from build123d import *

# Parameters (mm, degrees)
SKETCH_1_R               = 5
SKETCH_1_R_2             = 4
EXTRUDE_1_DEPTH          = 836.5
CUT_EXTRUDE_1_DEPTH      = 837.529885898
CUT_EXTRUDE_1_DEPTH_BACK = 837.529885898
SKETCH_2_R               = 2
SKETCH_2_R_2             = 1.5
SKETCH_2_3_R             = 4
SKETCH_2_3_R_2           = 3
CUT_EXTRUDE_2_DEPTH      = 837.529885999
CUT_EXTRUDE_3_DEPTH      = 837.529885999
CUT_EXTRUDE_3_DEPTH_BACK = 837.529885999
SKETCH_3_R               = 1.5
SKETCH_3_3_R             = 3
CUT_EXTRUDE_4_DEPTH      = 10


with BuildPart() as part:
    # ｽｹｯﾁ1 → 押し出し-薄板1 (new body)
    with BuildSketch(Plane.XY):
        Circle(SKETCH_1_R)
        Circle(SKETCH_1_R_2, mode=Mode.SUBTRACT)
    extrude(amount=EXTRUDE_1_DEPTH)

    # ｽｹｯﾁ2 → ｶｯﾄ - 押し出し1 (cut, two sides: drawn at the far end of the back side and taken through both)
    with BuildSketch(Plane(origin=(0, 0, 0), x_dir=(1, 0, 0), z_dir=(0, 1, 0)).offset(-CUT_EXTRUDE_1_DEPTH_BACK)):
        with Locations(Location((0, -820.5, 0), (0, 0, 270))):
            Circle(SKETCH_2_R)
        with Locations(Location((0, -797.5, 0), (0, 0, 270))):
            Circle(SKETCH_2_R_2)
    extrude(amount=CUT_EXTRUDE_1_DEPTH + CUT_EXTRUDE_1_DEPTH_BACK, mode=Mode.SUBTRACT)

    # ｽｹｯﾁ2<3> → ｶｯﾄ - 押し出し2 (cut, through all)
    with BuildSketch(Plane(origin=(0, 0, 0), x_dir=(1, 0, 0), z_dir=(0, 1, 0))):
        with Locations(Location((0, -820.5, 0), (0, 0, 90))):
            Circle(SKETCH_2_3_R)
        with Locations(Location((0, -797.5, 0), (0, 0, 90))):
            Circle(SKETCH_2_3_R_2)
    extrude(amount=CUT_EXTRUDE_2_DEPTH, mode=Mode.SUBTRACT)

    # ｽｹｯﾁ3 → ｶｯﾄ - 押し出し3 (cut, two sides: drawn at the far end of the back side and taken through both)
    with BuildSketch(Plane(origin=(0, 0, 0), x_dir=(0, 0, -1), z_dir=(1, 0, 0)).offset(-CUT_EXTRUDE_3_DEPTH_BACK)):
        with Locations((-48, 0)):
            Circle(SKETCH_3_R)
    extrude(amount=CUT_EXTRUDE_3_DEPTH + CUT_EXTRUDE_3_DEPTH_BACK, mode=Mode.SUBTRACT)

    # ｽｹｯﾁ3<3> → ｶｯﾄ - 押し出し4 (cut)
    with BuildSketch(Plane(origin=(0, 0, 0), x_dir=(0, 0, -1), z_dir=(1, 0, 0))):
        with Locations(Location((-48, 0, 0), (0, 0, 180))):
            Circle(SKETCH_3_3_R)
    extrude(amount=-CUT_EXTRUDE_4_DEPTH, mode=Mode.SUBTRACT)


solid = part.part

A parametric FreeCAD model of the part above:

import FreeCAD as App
import Part
import Sketcher

V = App.Vector
Q = App.Units.Quantity

doc = App.newDocument("Part")
params = doc.addObject("Spreadsheet::Sheet", "Params")
for row, (alias, value) in enumerate([
    ("sketch1_diameter", "10 mm"),
    ("sketch1_diameter2", "8 mm"),
    ("pad1_length", "836.5 mm"),
    ("sketch2_diameter", "4 mm"),
    ("sketch2_diameter2", "3 mm"),
    ("sketch3_diameter", "8 mm"),
    ("sketch3_diameter2", "6 mm"),
    ("sketch4_diameter", "3 mm"),
    ("sketch5_diameter", "6 mm"),
    ("pocket4_length", "10 mm"),
], start=1):
    params.set(f"A{row}", alias)
    params.set(f"B{row}", "=" + value)
    params.setAlias(f"B{row}", alias)

body = doc.addObject("PartDesign::Body", "Body")

# Sketch on XY plane
sketch1 = body.newObject("Sketcher::SketchObject", "Sketch")
sketch1.AttachmentSupport = (doc.getObject("XY_Plane"), [""])
sketch1.MapMode = "FlatFace"
sketch1.addGeometry([
    Part.Circle(V(0, 0, 0), V(0, 0, 1), 5),
    Part.Circle(V(0, 0, 0), V(0, 0, 1), 4),
], False)
sketch1.addConstraint([
    Sketcher.Constraint("Coincident", 0, 3, -1, 1),
    Sketcher.Constraint("Coincident", 1, 3, -1, 1),
    Sketcher.Constraint("Diameter", 0, Q("10 mm")),
    Sketcher.Constraint("Diameter", 1, Q("8 mm")),
])
sketch1.setExpression("Constraints[2]", "Params.sketch1_diameter")
sketch1.setExpression("Constraints[3]", "Params.sketch1_diameter2")
pad1 = body.newObject("PartDesign::Pad", "Pad")
pad1.Profile = sketch1
pad1.setExpression("Length", "Params.pad1_length")

# Sketch on XZ plane
sketch2 = body.newObject("Sketcher::SketchObject", "Sketch001")
sketch2.AttachmentSupport = (doc.getObject("XZ_Plane"), [""])
sketch2.MapMode = "FlatFace"
sketch2.addGeometry([
    Part.Circle(V(0, 820.5, 0), V(0, 0, 1), 2),
    Part.Circle(V(0, 797.5, 0), V(0, 0, 1), 1.5),
], False)
sketch2.addConstraint([
    Sketcher.Constraint("PointOnObject", 0, 3, -2),
    Sketcher.Constraint("PointOnObject", 1, 3, -2),
    Sketcher.Constraint("Diameter", 0, Q("4 mm")),
    Sketcher.Constraint("Diameter", 1, Q("3 mm")),
    Sketcher.Constraint("DistanceY", 1, 3, 0, 3, Q("23 mm")),
    Sketcher.Constraint("DistanceY", -1, 1, 0, 3, Q("820.5 mm")),
])
sketch2.setExpression("Constraints[2]", "Params.sketch2_diameter")
sketch2.setExpression("Constraints[3]", "Params.sketch2_diameter2")
pocket1 = body.newObject("PartDesign::Pocket", "Pocket")
pocket1.Profile = sketch2
pocket1.Type = "ThroughAll"
pocket1.Midplane = True

# Sketch on XZ plane
sketch3 = body.newObject("Sketcher::SketchObject", "Sketch002")
sketch3.AttachmentSupport = (doc.getObject("XZ_Plane"), [""])
sketch3.MapMode = "FlatFace"
sketch3.addGeometry([
    Part.Circle(V(0, 820.5, 0), V(0, 0, 1), 4),
    Part.Circle(V(0, 797.5, 0), V(0, 0, 1), 3),
], False)
sketch3.addConstraint([
    Sketcher.Constraint("PointOnObject", 0, 3, -2),
    Sketcher.Constraint("PointOnObject", 1, 3, -2),
    Sketcher.Constraint("Diameter", 0, Q("8 mm")),
    Sketcher.Constraint("Diameter", 1, Q("6 mm")),
    Sketcher.Constraint("DistanceY", 1, 3, 0, 3, Q("23 mm")),
    Sketcher.Constraint("DistanceY", -1, 1, 0, 3, Q("820.5 mm")),
])
sketch3.setExpression("Constraints[2]", "Params.sketch3_diameter")
sketch3.setExpression("Constraints[3]", "Params.sketch3_diameter2")
pocket2 = body.newObject("PartDesign::Pocket", "Pocket001")
pocket2.Profile = sketch3
pocket2.Type = "ThroughAll"

# Sketch on YZ plane
sketch4 = body.newObject("Sketcher::SketchObject", "Sketch003")
sketch4.AttachmentSupport = (doc.getObject("YZ_Plane"), [""])
sketch4.MapMode = "FlatFace"
sketch4.addGeometry(Part.Circle(V(0, 48, 0), V(0, 0, 1), 1.5), False)
sketch4.addConstraint([
    Sketcher.Constraint("PointOnObject", 0, 3, -2),
    Sketcher.Constraint("Diameter", 0, Q("3 mm")),
    Sketcher.Constraint("DistanceY", -1, 1, 0, 3, Q("48 mm")),
])
sketch4.setExpression("Constraints[1]", "Params.sketch4_diameter")
pocket3 = body.newObject("PartDesign::Pocket", "Pocket002")
pocket3.Profile = sketch4
pocket3.Type = "ThroughAll"
pocket3.Midplane = True

# Sketch on YZ plane
sketch5 = body.newObject("Sketcher::SketchObject", "Sketch004")
sketch5.AttachmentSupport = (doc.getObject("YZ_Plane"), [""])
sketch5.MapMode = "FlatFace"
sketch5.addGeometry(Part.Circle(V(0, 48, 0), V(0, 0, 1), 3), False)
sketch5.addConstraint([
    Sketcher.Constraint("PointOnObject", 0, 3, -2),
    Sketcher.Constraint("Diameter", 0, Q("6 mm")),
    Sketcher.Constraint("DistanceY", -1, 1, 0, 3, Q("48 mm")),
])
sketch5.setExpression("Constraints[1]", "Params.sketch5_diameter")
pocket4 = body.newObject("PartDesign::Pocket", "Pocket003")
pocket4.Profile = sketch5
pocket4.setExpression("Length", "Params.pocket4_length")

doc.recompute()
